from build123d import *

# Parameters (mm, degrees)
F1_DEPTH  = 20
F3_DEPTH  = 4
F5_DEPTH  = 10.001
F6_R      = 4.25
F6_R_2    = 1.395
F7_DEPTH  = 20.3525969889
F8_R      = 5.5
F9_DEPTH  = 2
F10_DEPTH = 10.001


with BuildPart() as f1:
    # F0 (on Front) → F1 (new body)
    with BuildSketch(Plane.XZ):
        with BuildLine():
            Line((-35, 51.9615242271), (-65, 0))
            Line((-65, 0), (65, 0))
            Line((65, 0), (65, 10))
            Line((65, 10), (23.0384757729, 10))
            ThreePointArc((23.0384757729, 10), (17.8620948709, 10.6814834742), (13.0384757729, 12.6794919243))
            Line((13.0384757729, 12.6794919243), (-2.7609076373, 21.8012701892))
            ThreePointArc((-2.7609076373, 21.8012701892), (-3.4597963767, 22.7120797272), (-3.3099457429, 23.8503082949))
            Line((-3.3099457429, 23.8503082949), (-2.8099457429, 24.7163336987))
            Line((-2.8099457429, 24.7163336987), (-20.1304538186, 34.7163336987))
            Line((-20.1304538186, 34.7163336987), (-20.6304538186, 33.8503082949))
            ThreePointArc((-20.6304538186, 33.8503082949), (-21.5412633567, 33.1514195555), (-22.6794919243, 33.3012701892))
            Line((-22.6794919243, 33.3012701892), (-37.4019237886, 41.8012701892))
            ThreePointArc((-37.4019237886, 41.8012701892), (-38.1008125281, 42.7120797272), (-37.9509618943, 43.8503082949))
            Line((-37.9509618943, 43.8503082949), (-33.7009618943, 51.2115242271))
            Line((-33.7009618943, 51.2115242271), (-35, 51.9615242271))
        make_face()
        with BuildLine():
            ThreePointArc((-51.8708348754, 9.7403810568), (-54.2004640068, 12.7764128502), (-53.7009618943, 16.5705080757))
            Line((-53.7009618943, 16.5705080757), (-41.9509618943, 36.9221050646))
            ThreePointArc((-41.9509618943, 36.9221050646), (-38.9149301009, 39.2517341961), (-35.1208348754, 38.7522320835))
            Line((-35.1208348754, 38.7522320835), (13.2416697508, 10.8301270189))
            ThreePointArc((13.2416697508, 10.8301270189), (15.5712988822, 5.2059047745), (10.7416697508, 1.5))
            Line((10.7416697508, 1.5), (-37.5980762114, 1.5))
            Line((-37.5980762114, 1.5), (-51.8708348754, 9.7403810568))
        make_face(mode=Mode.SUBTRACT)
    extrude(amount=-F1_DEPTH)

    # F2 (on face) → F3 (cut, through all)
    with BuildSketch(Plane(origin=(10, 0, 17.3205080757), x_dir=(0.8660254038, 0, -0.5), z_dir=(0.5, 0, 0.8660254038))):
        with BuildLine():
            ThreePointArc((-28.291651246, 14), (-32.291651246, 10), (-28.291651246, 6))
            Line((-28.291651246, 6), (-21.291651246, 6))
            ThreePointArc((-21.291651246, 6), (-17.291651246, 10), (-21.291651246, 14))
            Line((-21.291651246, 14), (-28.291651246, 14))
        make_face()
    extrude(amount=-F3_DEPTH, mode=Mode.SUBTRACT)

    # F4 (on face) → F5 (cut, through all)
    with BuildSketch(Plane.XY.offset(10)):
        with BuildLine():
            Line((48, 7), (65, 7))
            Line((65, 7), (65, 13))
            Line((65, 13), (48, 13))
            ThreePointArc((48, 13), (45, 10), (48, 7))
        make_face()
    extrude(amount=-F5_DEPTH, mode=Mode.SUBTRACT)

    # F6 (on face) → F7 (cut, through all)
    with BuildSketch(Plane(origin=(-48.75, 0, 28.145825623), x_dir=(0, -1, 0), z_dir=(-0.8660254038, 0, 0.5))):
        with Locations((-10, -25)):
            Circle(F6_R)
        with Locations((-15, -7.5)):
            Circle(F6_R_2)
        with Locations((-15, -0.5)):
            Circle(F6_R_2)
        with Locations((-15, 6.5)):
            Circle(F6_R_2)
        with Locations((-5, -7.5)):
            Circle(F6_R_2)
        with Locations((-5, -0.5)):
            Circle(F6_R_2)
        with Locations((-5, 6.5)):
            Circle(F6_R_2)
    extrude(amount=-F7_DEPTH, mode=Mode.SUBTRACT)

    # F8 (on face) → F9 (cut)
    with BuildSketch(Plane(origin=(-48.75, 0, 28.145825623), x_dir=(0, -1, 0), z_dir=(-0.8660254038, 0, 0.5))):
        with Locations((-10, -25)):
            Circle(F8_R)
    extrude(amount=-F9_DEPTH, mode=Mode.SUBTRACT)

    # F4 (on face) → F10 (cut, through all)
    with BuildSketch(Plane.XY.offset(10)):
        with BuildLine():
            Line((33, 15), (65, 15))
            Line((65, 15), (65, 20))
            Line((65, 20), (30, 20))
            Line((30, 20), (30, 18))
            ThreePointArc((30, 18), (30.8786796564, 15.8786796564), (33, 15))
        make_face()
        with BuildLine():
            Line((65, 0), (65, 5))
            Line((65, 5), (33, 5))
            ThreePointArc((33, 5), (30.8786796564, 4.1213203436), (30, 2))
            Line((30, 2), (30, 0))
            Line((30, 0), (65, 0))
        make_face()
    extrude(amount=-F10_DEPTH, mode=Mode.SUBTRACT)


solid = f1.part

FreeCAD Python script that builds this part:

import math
import FreeCAD as App
import Part
import Sketcher
from FreeCAD import Vector
Q = App.Units.Quantity

doc = App.newDocument("Part")
body = doc.addObject("PartDesign::Body", "Body")

# Sketch on XZ plane
sketch1 = body.newObject("Sketcher::SketchObject", "Sketch")
sketch1.AttachmentSupport = (doc.getObject("XZ_Plane"), [""])
sketch1.MapMode = "FlatFace"
sketch1.addGeometry([
    Part.LineSegment(Vector(-35, 52, 0), Vector(-65, 0, 0)),  # 0
    Part.LineSegment(Vector(-65, 0, 0), Vector(65, 0, 0)),  # 1
    Part.LineSegment(Vector(65, 0, 0), Vector(65, 10, 0)),  # 2
    Part.LineSegment(Vector(65, 10, 0), Vector(23, 10, 0)),  # 3
    Part.ArcOfCircle(Part.Circle(Vector(23, 30, 0), Vector(0, 0, 1), 20), math.radians(-120), math.radians(-90)),  # 4
    Part.LineSegment(Vector(13, 12.7, 0), Vector(-2.8, 21.8, 0)),  # 5
    Part.ArcOfCircle(Part.Circle(Vector(-2, 23.1, 0), Vector(0, 0, 1), 1.5), math.radians(150), math.radians(240)),  # 6
    Part.LineSegment(Vector(-3.3, 23.9, 0), Vector(-2.8, 24.7, 0)),  # 7
    Part.LineSegment(Vector(-2.8, 24.7, 0), Vector(-20.1, 34.7, 0)),  # 8
    Part.LineSegment(Vector(-20.1, 34.7, 0), Vector(-20.6, 33.9, 0)),  # 9
    Part.ArcOfCircle(Part.Circle(Vector(-21.9, 34.6, 0), Vector(0, 0, 1), 1.5), math.radians(-120), math.radians(-30)),  # 10
    Part.LineSegment(Vector(-22.7, 33.3, 0), Vector(-37.4, 41.8, 0)),  # 11
    Part.ArcOfCircle(Part.Circle(Vector(-36.7, 43.1, 0), Vector(0, 0, 1), 1.5), math.radians(150), math.radians(240)),  # 12
    Part.LineSegment(Vector(-38, 43.9, 0), Vector(-33.7, 51.2, 0)),  # 13
    Part.LineSegment(Vector(-33.7, 51.2, 0), Vector(-35, 52, 0)),  # 14
    Part.LineSegment(Vector(-37.6, 1.5, 0), Vector(-51.9, 9.7, 0)),  # 15
    Part.ArcOfCircle(Part.Circle(Vector(-49.4, 14.1, 0), Vector(0, 0, 1), 5), math.radians(150), math.radians(240)),  # 16
    Part.LineSegment(Vector(-53.7, 16.6, 0), Vector(-42, 36.9, 0)),  # 17
    Part.ArcOfCircle(Part.Circle(Vector(-37.6, 34.4, 0), Vector(0, 0, 1), 5), math.radians(60), math.radians(150)),  # 18
    Part.LineSegment(Vector(-35.1, 38.8, 0), Vector(13.2, 10.8, 0)),  # 19
    Part.ArcOfCircle(Part.Circle(Vector(10.7, 6.5, 0), Vector(0, 0, 1), 5), math.radians(-90), math.radians(60)),  # 20
    Part.LineSegment(Vector(10.7, 1.5, 0), Vector(-37.6, 1.5, 0)),  # 21
], False)
sketch1.addConstraint([
    Sketcher.Constraint("Coincident", 0, 2, 1, 1),
    Sketcher.Constraint("Coincident", 1, 2, 2, 1),
    Sketcher.Constraint("Coincident", 2, 2, 3, 1),
    Sketcher.Constraint("Tangent", 3, 2, 4, 2),
    Sketcher.Constraint("Tangent", 4, 1, 5, 1),
    Sketcher.Constraint("Tangent", 5, 2, 6, 2),
    Sketcher.Constraint("Tangent", 6, 1, 7, 1),
    Sketcher.Constraint("Coincident", 7, 2, 8, 1),
    Sketcher.Constraint("Coincident", 8, 2, 9, 1),
    Sketcher.Constraint("Tangent", 9, 2, 10, 2),
    Sketcher.Constraint("Tangent", 10, 1, 11, 1),
    Sketcher.Constraint("Tangent", 11, 2, 12, 2),
    Sketcher.Constraint("Tangent", 12, 1, 13, 1),
    Sketcher.Constraint("Coincident", 13, 2, 14, 1),
    Sketcher.Constraint("Coincident", 14, 2, 0, 1),
    Sketcher.Constraint("Tangent", 15, 2, 16, 2),
    Sketcher.Constraint("Tangent", 16, 1, 17, 1),
    Sketcher.Constraint("Tangent", 17, 2, 18, 2),
    Sketcher.Constraint("Tangent", 18, 1, 19, 1),
    Sketcher.Constraint("Tangent", 19, 2, 20, 2),
    Sketcher.Constraint("Tangent", 20, 1, 21, 1),
    Sketcher.Constraint("Coincident", 21, 2, 15, 1),
    Sketcher.Constraint("Horizontal", 1),
    Sketcher.Constraint("Vertical", 2),
    Sketcher.Constraint("Horizontal", 3),
    Sketcher.Constraint("Horizontal", 21),
    Sketcher.Constraint("Equal", 6, 10),
    Sketcher.Constraint("Equal", 10, 12),
    Sketcher.Constraint("Equal", 16, 18),
    Sketcher.Constraint("Equal", 18, 20),
    Sketcher.Constraint("Symmetric", 0, 2, 1, 2, -1, 1),
    Sketcher.Constraint("Perpendicular", 0, 5),
    Sketcher.Constraint("Perpendicular", 5, 7),
    Sketcher.Constraint("Perpendicular", 7, 8),
    Sketcher.Constraint("Perpendicular", 8, 9),
    Sketcher.Constraint("Perpendicular", 9, 11),
    Sketcher.Constraint("Perpendicular", 11, 13),
    Sketcher.Constraint("Perpendicular", 13, 14),
    Sketcher.Constraint("Parallel", 14, 15),
    Sketcher.Constraint("Perpendicular", 15, 17),
    Sketcher.Constraint("Perpendicular", 17, 19),
    Sketcher.Constraint("Equal", 7, 9),
    Sketcher.Constraint("Radius", 4, Q("20 mm")),
    Sketcher.Constraint("Radius", 16, Q("5 mm")),
    Sketcher.Constraint("Radius", 6, Q("1.5 mm")),
    Sketcher.Constraint("DistanceX", 1, 1, 1, 2, Q("130 mm")),
    Sketcher.Constraint("DistanceY", 2, 1, 2, 2, Q("10 mm")),
    Sketcher.Constraint("Angle", 0, Q("-120 deg")),
    Sketcher.Constraint("Distance", 0, Q("60 mm")),
    Sketcher.Constraint("Distance", 7, Q("1 mm")),
    Sketcher.Constraint("Distance", 8, Q("20 mm")),
    Sketcher.Constraint("Distance", 11, Q("17 mm")),
    Sketcher.Constraint("DistanceX", 17, 2, 12, 1, Q("4 mm")),
    Sketcher.Constraint("Distance", 13, Q("8.5 mm")),
    Sketcher.Constraint("Distance", 14, Q("1.5 mm")),
    Sketcher.Constraint("Distance", 17, Q("23.5 mm")),
    Sketcher.Constraint("DistanceY", -1, 1, 20, 3, Q("6.5 mm")),
    Sketcher.Constraint("DistanceY", 16, 3, 12, 3, Q("29.0298 mm")),
])
pad1 = body.newObject("PartDesign::Pad", "Pad")
pad1.Profile = sketch1
pad1.Length = 20
pad1.Reversed = True

# Sketch on an angled plane
sketch2 = body.newObject("Sketcher::SketchObject", "Sketch001")
sketch2.Placement = App.Placement(Vector(10, 0, 17.320508), App.Rotation(Vector(0.866025404, 0, -0.5), Vector(0, 1, 0), Vector(0.5, 0, 0.866025404), "ZXY"))
sketch2.addGeometry([
    Part.ArcOfCircle(Part.Circle(Vector(-28.3, 10, 0), Vector(0, 0, 1), 4), math.radians(90), math.radians(270)),
    Part.LineSegment(Vector(-28.3, 6, 0), Vector(-21.3, 6, 0)),
    Part.ArcOfCircle(Part.Circle(Vector(-21.3, 10, 0), Vector(0, 0, 1), 4), math.radians(-90), math.radians(90)),
    Part.LineSegment(Vector(-21.3, 14, 0), Vector(-28.3, 14, 0)),
], False)
sketch2.addConstraint([
    Sketcher.Constraint("Tangent", 0, 2, 1, 1),
    Sketcher.Constraint("Tangent", 1, 2, 2, 1),
    Sketcher.Constraint("Tangent", 2, 2, 3, 1),
    Sketcher.Constraint("Tangent", 3, 2, 0, 1),
    Sketcher.Constraint("Horizontal", 1),
    Sketcher.Constraint("Horizontal", 3),
    Sketcher.Constraint("Radius", 0, Q("4 mm")),
    Sketcher.Constraint("DistanceX", 1, 1, 1, 2, Q("7 mm")),
    Sketcher.Constraint("DistanceY", -1, 1, 0, 3, Q("10 mm")),
    Sketcher.Constraint("DistanceX", 0, 3, -1, 1, Q("28.291651 mm")),
])
pocket1 = body.newObject("PartDesign::Pocket", "Pocket")
pocket1.Profile = sketch2
pocket1.Length = 4

# Sketch on XY plane
sketch3 = body.newObject("Sketcher::SketchObject", "Sketch002")
sketch3.AttachmentSupport = (doc.getObject("XY_Plane"), [""])
sketch3.MapMode = "FlatFace"
sketch3.AttachmentOffset = App.Placement(Vector(0, 0, 10), App.Rotation())
sketch3.addGeometry([
    Part.LineSegment(Vector(48, 7, 0), Vector(65, 7, 0)),
    Part.LineSegment(Vector(65, 7, 0), Vector(65, 13, 0)),
    Part.LineSegment(Vector(65, 13, 0), Vector(48, 13, 0)),
    Part.ArcOfCircle(Part.Circle(Vector(48, 10, 0), Vector(0, 0, 1), 3), math.radians(90), math.radians(270)),
], False)
sketch3.addConstraint([
    Sketcher.Constraint("Coincident", 0, 2, 1, 1),
    Sketcher.Constraint("Coincident", 1, 2, 2, 1),
    Sketcher.Constraint("Tangent", 2, 2, 3, 1),
    Sketcher.Constraint("Tangent", 3, 2, 0, 1),
    Sketcher.Constraint("Horizontal", 0),
    Sketcher.Constraint("Vertical", 1),
    Sketcher.Constraint("Horizontal", 2),
    Sketcher.Constraint("Radius", 3, Q("3 mm")),
    Sketcher.Constraint("DistanceX", 0, 1, 0, 2, Q("17 mm")),
    Sketcher.Constraint("DistanceX", -1, 1, 3, 3, Q("48 mm")),
    Sketcher.Constraint("DistanceY", -1, 1, 3, 3, Q("10 mm")),
])
pocket2 = body.newObject("PartDesign::Pocket", "Pocket001")
pocket2.Profile = sketch3
pocket2.Type = "ThroughAll"

# Sketch on an angled plane
sketch4 = body.newObject("Sketcher::SketchObject", "Sketch003")
sketch4.Placement = App.Placement(Vector(-48.75, 0, 28.145826), App.Rotation(Vector(0, -1, 0), Vector(0.5, 0, 0.866025404), Vector(-0.866025404, 0, 0.5), "ZXY"))
sketch4.addGeometry([
    Part.Circle(Vector(-10, -25, 0), Vector(0, 0, 1), 4.2),  # 0
    Part.Circle(Vector(-15, -7.5, 0), Vector(0, 0, 1), 1.4),  # 1
    Part.Circle(Vector(-15, -0.5, 0), Vector(0, 0, 1), 1.4),  # 2
    Part.Circle(Vector(-15, 6.5, 0), Vector(0, 0, 1), 1.4),  # 3
    Part.Circle(Vector(-5, -7.5, 0), Vector(0, 0, 1), 1.4),  # 4
    Part.Circle(Vector(-5, -0.5, 0), Vector(0, 0, 1), 1.4),  # 5
    Part.Circle(Vector(-5, 6.5, 0), Vector(0, 0, 1), 1.4),  # 6
], False)
sketch4.addConstraint([
    Sketcher.Constraint("Equal", 1, 2),
    Sketcher.Constraint("Equal", 2, 3),
    Sketcher.Constraint("Equal", 3, 4),
    Sketcher.Constraint("Equal", 4, 5),
    Sketcher.Constraint("Equal", 5, 6),
    Sketcher.Constraint("Horizontal", 1, 3, 4, 3),
    Sketcher.Constraint("Horizontal", 2, 3, 5, 3),
    Sketcher.Constraint("Horizontal", 3, 3, 6, 3),
    Sketcher.Constraint("Vertical", 1, 3, 2, 3),
    Sketcher.Constraint("Vertical", 2, 3, 3, 3),
    Sketcher.Constraint("Vertical", 4, 3, 5, 3),
    Sketcher.Constraint("Vertical", 5, 3, 6, 3),
    Sketcher.Constraint("Diameter", 0, Q("8.5 mm")),
    Sketcher.Constraint("Diameter", 1, Q("2.79 mm")),
    Sketcher.Constraint("DistanceX", 0, 3, -1, 1, Q("10 mm")),
    Sketcher.Constraint("DistanceY", 0, 3, -1, 1, Q("25 mm")),
    Sketcher.Constraint("DistanceX", 1, 3, -1, 1, Q("15 mm")),
    Sketcher.Constraint("DistanceX", 4, 3, -1, 1, Q("5 mm")),
    Sketcher.Constraint("DistanceY", 1, 3, 2, 3, Q("7 mm")),
    Sketcher.Constraint("DistanceY", 2, 3, 3, 3, Q("7 mm")),
    Sketcher.Constraint("DistanceY", 1, 3, -1, 1, Q("7.5 mm")),
])
pocket3 = body.newObject("PartDesign::Pocket", "Pocket002")
pocket3.Profile = sketch4
pocket3.Length = 20.352597

# Sketch on an angled plane
sketch5 = body.newObject("Sketcher::SketchObject", "Sketch004")
sketch5.Placement = App.Placement(Vector(-48.75, 0, 28.145826), App.Rotation(Vector(0, -1, 0), Vector(0.5, 0, 0.866025404), Vector(-0.866025404, 0, 0.5), "ZXY"))
sketch5.addGeometry(Part.Circle(Vector(-10, -25, 0), Vector(0, 0, 1), 6), False)
sketch5.addConstraint([
    Sketcher.Constraint("Diameter", 0, Q("11 mm")),
    Sketcher.Constraint("DistanceX", 0, 3, -1, 1, Q("10 mm")),
    Sketcher.Constraint("DistanceY", 0, 3, -1, 1, Q("25 mm")),
])
pocket4 = body.newObject("PartDesign::Pocket", "Pocket003")
pocket4.Profile = sketch5
pocket4.Length = 2

# Sketch on XY plane
sketch6 = body.newObject("Sketcher::SketchObject", "Sketch005")
sketch6.AttachmentSupport = (doc.getObject("XY_Plane"), [""])
sketch6.MapMode = "FlatFace"
sketch6.AttachmentOffset = App.Placement(Vector(0, 0, 10), App.Rotation())
sketch6.addGeometry([
    Part.LineSegment(Vector(33, 15, 0), Vector(65, 15, 0)),  # 0
    Part.LineSegment(Vector(65, 15, 0), Vector(65, 20, 0)),  # 1
    Part.LineSegment(Vector(65, 20, 0), Vector(30, 20, 0)),  # 2
    Part.LineSegment(Vector(30, 20, 0), Vector(30, 18, 0)),  # 3
    Part.ArcOfCircle(Part.Circle(Vector(33, 18, 0), Vector(0, 0, 1), 3), math.radians(180), math.radians(270)),  # 4
    Part.LineSegment(Vector(65, 0, 0), Vector(65, 5, 0)),  # 5
    Part.LineSegment(Vector(65, 5, 0), Vector(33, 5, 0)),  # 6
    Part.ArcOfCircle(Part.Circle(Vector(33, 2, 0), Vector(0, 0, 1), 3), math.radians(90), math.radians(180)),  # 7
    Part.LineSegment(Vector(30, 2, 0), Vector(30, 0, 0)),  # 8
    Part.LineSegment(Vector(30, 0, 0), Vector(65, 0, 0)),  # 9
], False)
sketch6.addConstraint([
    Sketcher.Constraint("Coincident", 0, 2, 1, 1),
    Sketcher.Constraint("Coincident", 1, 2, 2, 1),
    Sketcher.Constraint("Coincident", 2, 2, 3, 1),
    Sketcher.Constraint("Tangent", 3, 2, 4, 1),
    Sketcher.Constraint("Tangent", 4, 2, 0, 1),
    Sketcher.Constraint("Coincident", 5, 2, 6, 1),
    Sketcher.Constraint("Tangent", 6, 2, 7, 1),
    Sketcher.Constraint("Tangent", 7, 2, 8, 1),
    Sketcher.Constraint("Coincident", 8, 2, 9, 1),
    Sketcher.Constraint("Coincident", 9, 2, 5, 1),
    Sketcher.Constraint("Horizontal", 0),
    Sketcher.Constraint("Vertical", 1),
    Sketcher.Constraint("Horizontal", 2),
    Sketcher.Constraint("Vertical", 3),
    Sketcher.Constraint("Vertical", 5),
    Sketcher.Constraint("Horizontal", 6),
    Sketcher.Constraint("Vertical", 8),
    Sketcher.Constraint("Horizontal", 9),
    Sketcher.Constraint("Equal", 4, 7),
    Sketcher.Constraint("PointOnObject", 8, 2, -1),
    Sketcher.Constraint("Vertical", 4, 3, 7, 3),
    Sketcher.Constraint("Vertical", 1, 2, 5, 2),
    Sketcher.Constraint("Equal", 1, 5),
    Sketcher.Constraint("Radius", 4, Q("3 mm")),
    Sketcher.Constraint("DistanceX", 0, 1, 0, 2, Q("32 mm")),
    Sketcher.Constraint("DistanceY", 1, 1, 1, 2, Q("5 mm")),
    Sketcher.Constraint("DistanceX", -1, 1, 4, 3, Q("33 mm")),
    Sketcher.Constraint("DistanceY", -1, 1, 4, 3, Q("18 mm")),
])
pocket5 = body.newObject("PartDesign::Pocket", "Pocket004")
pocket5.Profile = sketch6
pocket5.Type = "ThroughAll"

doc.recompute()
